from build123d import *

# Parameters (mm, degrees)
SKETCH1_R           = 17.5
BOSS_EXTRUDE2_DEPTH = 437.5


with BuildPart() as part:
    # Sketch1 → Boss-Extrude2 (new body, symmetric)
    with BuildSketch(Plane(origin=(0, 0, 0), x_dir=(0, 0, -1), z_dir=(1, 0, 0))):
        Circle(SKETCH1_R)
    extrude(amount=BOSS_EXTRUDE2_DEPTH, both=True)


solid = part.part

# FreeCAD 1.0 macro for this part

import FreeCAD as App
import Part
import Sketcher
from FreeCAD import Vector

doc = App.newDocument("Part")
body = doc.addObject("PartDesign::Body", "Body")

sketch1 = doc.addObject("Sketcher::SketchObject", "Sketch")
body.addObject(sketch1)
sketch1.AttachmentSupport = (doc.YZ_Plane, [""])
sketch1.MapMode = "FlatFace"
sketch1.addGeometry(Part.Circle(Vector(0, 0, 0), Vector(0, 0, 1), 18), False)
sketch1.addConstraint(Sketcher.Constraint("Coincident", 0, 3, -1, 1))
sketch1.addConstraint(Sketcher.Constraint("Diameter", 0, 35.0))
pad1 = doc.addObject("PartDesign::Pad", "Pad")
body.addObject(pad1)
pad1.Profile = sketch1
pad1.Length = 875
pad1.Midplane = True

doc.recompute()
